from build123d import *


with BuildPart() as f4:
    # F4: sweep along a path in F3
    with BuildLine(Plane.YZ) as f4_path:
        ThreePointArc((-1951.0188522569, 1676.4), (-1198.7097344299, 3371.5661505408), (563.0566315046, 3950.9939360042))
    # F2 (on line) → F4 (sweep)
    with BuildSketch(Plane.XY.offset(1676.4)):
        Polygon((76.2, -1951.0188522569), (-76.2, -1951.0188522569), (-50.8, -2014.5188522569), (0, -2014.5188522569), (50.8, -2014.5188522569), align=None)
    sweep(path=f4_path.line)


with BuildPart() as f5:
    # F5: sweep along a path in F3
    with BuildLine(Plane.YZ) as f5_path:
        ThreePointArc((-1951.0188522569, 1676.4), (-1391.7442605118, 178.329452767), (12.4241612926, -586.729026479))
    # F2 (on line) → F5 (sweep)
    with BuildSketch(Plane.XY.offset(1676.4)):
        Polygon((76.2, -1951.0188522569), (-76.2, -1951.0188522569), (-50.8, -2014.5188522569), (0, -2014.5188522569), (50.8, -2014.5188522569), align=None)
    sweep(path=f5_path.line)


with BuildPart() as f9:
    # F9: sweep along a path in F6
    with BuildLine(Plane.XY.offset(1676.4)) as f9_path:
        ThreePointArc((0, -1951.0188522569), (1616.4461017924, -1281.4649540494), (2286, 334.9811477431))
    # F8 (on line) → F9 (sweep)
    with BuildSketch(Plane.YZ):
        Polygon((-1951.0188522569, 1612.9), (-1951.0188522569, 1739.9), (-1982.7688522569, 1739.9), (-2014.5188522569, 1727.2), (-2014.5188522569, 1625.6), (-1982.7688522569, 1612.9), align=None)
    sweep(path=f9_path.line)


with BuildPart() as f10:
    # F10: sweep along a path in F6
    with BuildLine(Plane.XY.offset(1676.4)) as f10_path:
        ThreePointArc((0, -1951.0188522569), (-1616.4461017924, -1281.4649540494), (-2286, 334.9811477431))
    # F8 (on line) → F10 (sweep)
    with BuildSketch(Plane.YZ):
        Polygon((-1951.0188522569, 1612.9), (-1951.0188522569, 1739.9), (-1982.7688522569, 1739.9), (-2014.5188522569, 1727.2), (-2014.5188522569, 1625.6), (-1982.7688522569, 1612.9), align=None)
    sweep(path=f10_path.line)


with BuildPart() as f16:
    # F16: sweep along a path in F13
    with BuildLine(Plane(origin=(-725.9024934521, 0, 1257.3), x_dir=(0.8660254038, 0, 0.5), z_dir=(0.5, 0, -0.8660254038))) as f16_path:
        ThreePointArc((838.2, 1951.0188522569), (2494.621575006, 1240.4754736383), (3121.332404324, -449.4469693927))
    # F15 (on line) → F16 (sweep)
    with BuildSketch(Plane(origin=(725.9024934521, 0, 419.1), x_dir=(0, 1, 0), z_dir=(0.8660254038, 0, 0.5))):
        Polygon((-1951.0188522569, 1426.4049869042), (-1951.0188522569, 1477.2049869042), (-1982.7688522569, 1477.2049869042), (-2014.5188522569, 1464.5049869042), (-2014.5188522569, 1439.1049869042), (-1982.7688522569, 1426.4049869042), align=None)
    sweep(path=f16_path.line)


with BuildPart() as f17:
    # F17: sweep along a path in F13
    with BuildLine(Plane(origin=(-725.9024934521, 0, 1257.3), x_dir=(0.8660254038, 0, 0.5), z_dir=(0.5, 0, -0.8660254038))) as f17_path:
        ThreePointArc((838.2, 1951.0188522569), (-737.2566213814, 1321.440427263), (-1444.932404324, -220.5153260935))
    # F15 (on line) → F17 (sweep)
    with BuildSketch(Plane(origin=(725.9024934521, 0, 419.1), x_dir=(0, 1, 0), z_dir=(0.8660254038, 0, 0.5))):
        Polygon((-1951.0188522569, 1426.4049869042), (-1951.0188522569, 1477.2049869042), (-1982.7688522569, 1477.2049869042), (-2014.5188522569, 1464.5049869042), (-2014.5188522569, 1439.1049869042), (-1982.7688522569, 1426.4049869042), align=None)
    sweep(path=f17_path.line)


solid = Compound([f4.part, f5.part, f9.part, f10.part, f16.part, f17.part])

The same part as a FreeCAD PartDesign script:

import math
import FreeCAD as App
import Part
import Sketcher
Q = App.Units.Quantity


def add_polygon(sketch, points):
    """Adds a closed chain of lines whose ends are joined by coincident constraints."""
    first, n = sketch.GeometryCount, len(points)
    for a, b in zip(points, points[1:] + points[:1]):
        sketch.addGeometry(Part.LineSegment(App.Vector(*a, 0), App.Vector(*b, 0)), False)
    for i in range(n):
        sketch.addConstraint(Sketcher.Constraint("Coincident", first + i, 2, first + (i + 1) % n, 1))

doc = App.newDocument("Part")
body = doc.addObject("PartDesign::Body", "Body")

# Sketch on XY plane
sketch1 = doc.addObject("Sketcher::SketchObject", "Sketch")
body.addObject(sketch1)
sketch1.AttachmentSupport = (doc.XY_Plane, [""])
sketch1.MapMode = "FlatFace"
sketch1.AttachmentOffset = App.Placement(App.Vector(0, 0, 66 * 25.4), App.Rotation())
add_polygon(sketch1, [(76, -1951), (-76, -1951), (-51, -2015), (51, -2015)])  # lines 0-3
sketch1.addConstraint(Sketcher.Constraint("Horizontal", 0))
sketch1.addConstraint(Sketcher.Constraint("Horizontal", 2))
sketch1.addConstraint(Sketcher.Constraint("Equal", 1, 3))
sketch1.addConstraint(Sketcher.Constraint("DistanceX", 0, 2, 0, 1, Q("6 in")))
sketch1.addConstraint(Sketcher.Constraint("DistanceX", 2, 1, 2, 2, Q("4 in")))
sketch1.addConstraint(Sketcher.Constraint("DistanceX", 0, 2, -1, 1, Q("3 in")))
sketch1.addConstraint(Sketcher.Constraint("DistanceY", 1, 2, 0, 2, Q("2.5 in")))
sketch1.addConstraint(Sketcher.Constraint("DistanceY", 0, 2, -1, 1, Q("1951.018852 mm")))

# Sketch on YZ plane
sketch2 = doc.addObject("Sketcher::SketchObject", "Sketch001")
body.addObject(sketch2)
sketch2.AttachmentSupport = (doc.YZ_Plane, [""])
sketch2.MapMode = "FlatFace"
sketch2.addGeometry(Part.ArcOfCircle(Part.Circle(App.Vector(335, 1676, 0), App.Vector(0, 0, 1), 2286), math.radians(84), math.radians(180)), False)
sketch2.addConstraint(Sketcher.Constraint("Radius", 0, Q("90 in")))
sketch2.addConstraint(Sketcher.Constraint("DistanceY", -1, 1, 0, 3, Q("66 in")))
sketch2.addConstraint(Sketcher.Constraint("DistanceY", -1, 1, 0, 2, Q("66 in")))
sketch2.addConstraint(Sketcher.Constraint("DistanceX", -1, 1, 0, 1, Q("563.056632 mm")))
sketch2.addConstraint(Sketcher.Constraint("DistanceX", -1, 1, 0, 3, Q("334.981148 mm")))
doc.recompute()

additivepipe = doc.addObject("PartDesign::AdditivePipe", "AdditivePipe")
body.addObject(additivepipe)
additivepipe.Profile = sketch1
additivepipe.Spine = (sketch2, ["Edge1"])
body2 = doc.addObject("PartDesign::Body", "Body001")

# Sketch on XY plane
sketch3 = doc.addObject("Sketcher::SketchObject", "Sketch002")
body2.addObject(sketch3)
sketch3.AttachmentSupport = (doc.getObject("XY_Plane001"), [""])
sketch3.MapMode = "FlatFace"
sketch3.AttachmentOffset = App.Placement(App.Vector(0, 0, 66 * 25.4), App.Rotation())
add_polygon(sketch3, [(76, -1951), (-76, -1951), (-51, -2015), (51, -2015)])  # lines 0-3
sketch3.addConstraint(Sketcher.Constraint("Horizontal", 0))
sketch3.addConstraint(Sketcher.Constraint("Horizontal", 2))
sketch3.addConstraint(Sketcher.Constraint("Equal", 1, 3))
sketch3.addConstraint(Sketcher.Constraint("DistanceX", 0, 2, 0, 1, Q("6 in")))
sketch3.addConstraint(Sketcher.Constraint("DistanceX", 2, 1, 2, 2, Q("4 in")))
sketch3.addConstraint(Sketcher.Constraint("DistanceX", 0, 2, -1, 1, Q("3 in")))
sketch3.addConstraint(Sketcher.Constraint("DistanceY", 1, 2, 0, 2, Q("2.5 in")))
sketch3.addConstraint(Sketcher.Constraint("DistanceY", 0, 2, -1, 1, Q("1951.018852 mm")))

# Sketch on YZ plane
sketch4 = doc.addObject("Sketcher::SketchObject", "Sketch003")
body2.addObject(sketch4)
sketch4.AttachmentSupport = (doc.getObject("YZ_Plane001"), [""])
sketch4.MapMode = "FlatFace"
sketch4.addGeometry(Part.ArcOfCircle(Part.Circle(App.Vector(335, 1676, 0), App.Vector(0, 0, 1), 2286), math.radians(180), math.radians(262)), False)
sketch4.addConstraint(Sketcher.Constraint("Radius", 0, Q("90 in")))
sketch4.addConstraint(Sketcher.Constraint("DistanceY", -1, 1, 0, 3, Q("66 in")))
sketch4.addConstraint(Sketcher.Constraint("DistanceY", -1, 1, 0, 1, Q("66 in")))
sketch4.addConstraint(Sketcher.Constraint("DistanceX", -1, 1, 0, 2, Q("12.424161 mm")))
sketch4.addConstraint(Sketcher.Constraint("DistanceX", -1, 1, 0, 3, Q("334.981148 mm")))
doc.recompute()

additivepipe2 = doc.addObject("PartDesign::AdditivePipe", "AdditivePipe001")
body2.addObject(additivepipe2)
additivepipe2.Profile = sketch3
additivepipe2.Spine = (sketch4, ["Edge1"])
body3 = doc.addObject("PartDesign::Body", "Body002")

# Sketch on YZ plane
sketch5 = doc.addObject("Sketcher::SketchObject", "Sketch004")
body3.addObject(sketch5)
sketch5.AttachmentSupport = (doc.getObject("YZ_Plane002"), [""])
sketch5.MapMode = "FlatFace"
add_polygon(sketch5, [(-1951, 1613), (-1951, 1740), (-1983, 1740), (-2015, 1727), (-2015, 1626), (-1983, 1613)])  # lines 0-5
sketch5.addConstraint(Sketcher.Constraint("Vertical", 0))
sketch5.addConstraint(Sketcher.Constraint("Horizontal", 1))
sketch5.addConstraint(Sketcher.Constraint("Vertical", 3))
sketch5.addConstraint(Sketcher.Constraint("Horizontal", 5))
sketch5.addConstraint(Sketcher.Constraint("Vertical", 1, 2, 4, 2))
sketch5.addConstraint(Sketcher.Constraint("Equal", 2, 4))
sketch5.addConstraint(Sketcher.Constraint("DistanceY", 0, 1, 0, 2, Q("5 in")))
sketch5.addConstraint(Sketcher.Constraint("DistanceY", 3, 2, 3, 1, Q("4 in")))
sketch5.addConstraint(Sketcher.Constraint("DistanceY", -1, 1, 2, 2, Q("68 in")))
sketch5.addConstraint(Sketcher.Constraint("DistanceX", 1, 2, 1, 1, Q("1.25 in")))
sketch5.addConstraint(Sketcher.Constraint("DistanceX", 2, 2, 0, 2, Q("2.5 in")))
sketch5.addConstraint(Sketcher.Constraint("DistanceX", 0, 2, -1, 1, Q("1951.018852 mm")))

# Sketch on XY plane
sketch6 = doc.addObject("Sketcher::SketchObject", "Sketch005")
body3.addObject(sketch6)
sketch6.AttachmentSupport = (doc.getObject("XY_Plane002"), [""])
sketch6.MapMode = "FlatFace"
sketch6.AttachmentOffset = App.Placement(App.Vector(0, 0, 66 * 25.4), App.Rotation())
sketch6.addGeometry(Part.ArcOfCircle(Part.Circle(App.Vector(0, 335, 0), App.Vector(0, 0, 1), 2286), math.radians(-90), math.radians(0)), False)
sketch6.addConstraint(Sketcher.Constraint("PointOnObject", 0, 3, -2))
sketch6.addConstraint(Sketcher.Constraint("PointOnObject", 0, 1, -2))
sketch6.addConstraint(Sketcher.Constraint("Radius", 0, Q("90 in")))
sketch6.addConstraint(Sketcher.Constraint("DistanceY", 0, 1, 0, 2, Q("90 in")))
sketch6.addConstraint(Sketcher.Constraint("DistanceY", -1, 1, 0, 3, Q("334.981148 mm")))
doc.recompute()

additivepipe3 = doc.addObject("PartDesign::AdditivePipe", "AdditivePipe002")
body3.addObject(additivepipe3)
additivepipe3.Profile = sketch5
additivepipe3.Spine = (sketch6, ["Edge1"])
body4 = doc.addObject("PartDesign::Body", "Body003")

# Sketch on YZ plane
sketch7 = doc.addObject("Sketcher::SketchObject", "Sketch006")
body4.addObject(sketch7)
sketch7.AttachmentSupport = (doc.getObject("YZ_Plane003"), [""])
sketch7.MapMode = "FlatFace"
add_polygon(sketch7, [(-1951, 1613), (-1951, 1740), (-1983, 1740), (-2015, 1727), (-2015, 1626), (-1983, 1613)])  # lines 0-5
sketch7.addConstraint(Sketcher.Constraint("Vertical", 0))
sketch7.addConstraint(Sketcher.Constraint("Horizontal", 1))
sketch7.addConstraint(Sketcher.Constraint("Vertical", 3))
sketch7.addConstraint(Sketcher.Constraint("Horizontal", 5))
sketch7.addConstraint(Sketcher.Constraint("Vertical", 1, 2, 4, 2))
sketch7.addConstraint(Sketcher.Constraint("Equal", 2, 4))
sketch7.addConstraint(Sketcher.Constraint("DistanceY", 0, 1, 0, 2, Q("5 in")))
sketch7.addConstraint(Sketcher.Constraint("DistanceY", 3, 2, 3, 1, Q("4 in")))
sketch7.addConstraint(Sketcher.Constraint("DistanceY", -1, 1, 2, 2, Q("68 in")))
sketch7.addConstraint(Sketcher.Constraint("DistanceX", 1, 2, 1, 1, Q("1.25 in")))
sketch7.addConstraint(Sketcher.Constraint("DistanceX", 2, 2, 0, 2, Q("2.5 in")))
sketch7.addConstraint(Sketcher.Constraint("DistanceX", 0, 2, -1, 1, Q("1951.018852 mm")))

# Sketch on XY plane
sketch8 = doc.addObject("Sketcher::SketchObject", "Sketch007")
body4.addObject(sketch8)
sketch8.AttachmentSupport = (doc.getObject("XY_Plane003"), [""])
sketch8.MapMode = "FlatFace"
sketch8.AttachmentOffset = App.Placement(App.Vector(0, 0, 66 * 25.4), App.Rotation())
sketch8.addGeometry(Part.ArcOfCircle(Part.Circle(App.Vector(0, 335, 0), App.Vector(0, 0, 1), 2286), math.radians(180), math.radians(270)), False)
sketch8.addConstraint(Sketcher.Constraint("PointOnObject", 0, 3, -2))
sketch8.addConstraint(Sketcher.Constraint("PointOnObject", 0, 2, -2))
sketch8.addConstraint(Sketcher.Constraint("Radius", 0, Q("90 in")))
sketch8.addConstraint(Sketcher.Constraint("DistanceY", 0, 2, 0, 1, Q("90 in")))
sketch8.addConstraint(Sketcher.Constraint("DistanceY", -1, 1, 0, 3, Q("334.981148 mm")))
doc.recompute()

additivepipe4 = doc.addObject("PartDesign::AdditivePipe", "AdditivePipe003")
body4.addObject(additivepipe4)
additivepipe4.Profile = sketch7
additivepipe4.Spine = (sketch8, ["Edge1"])
body5 = doc.addObject("PartDesign::Body", "Body004")

# Sketch on an angled plane
sketch9 = doc.addObject("Sketcher::SketchObject", "Sketch008")
body5.addObject(sketch9)
sketch9.Placement = App.Placement(App.Vector(725.902493, 0, 419.1), App.Rotation(App.Vector(0, 1, 0), App.Vector(-0.5, 0, 0.866025404), App.Vector(0.866025404, 0, 0.5), "ZXY"))
add_polygon(sketch9, [(-1951, 1426), (-1951, 1477), (-1983, 1477), (-2015, 1465), (-2015, 1439), (-1983, 1426)])  # lines 0-5
sketch9.addConstraint(Sketcher.Constraint("Vertical", 0))
sketch9.addConstraint(Sketcher.Constraint("Horizontal", 1))
sketch9.addConstraint(Sketcher.Constraint("Vertical", 3))
sketch9.addConstraint(Sketcher.Constraint("Horizontal", 5))
sketch9.addConstraint(Sketcher.Constraint("Vertical", 1, 2, 4, 2))
sketch9.addConstraint(Sketcher.Constraint("Equal", 2, 4))
sketch9.addConstraint(Sketcher.Constraint("DistanceY", 0, 1, 0, 2, Q("2 in")))
sketch9.addConstraint(Sketcher.Constraint("DistanceY", 3, 2, 3, 1, Q("1 in")))
sketch9.addConstraint(Sketcher.Constraint("DistanceX", 1, 2, 1, 1, Q("1.25 in")))
sketch9.addConstraint(Sketcher.Constraint("DistanceX", 2, 2, 0, 2, Q("2.5 in")))
sketch9.addConstraint(Sketcher.Constraint("DistanceX", 0, 2, -1, 1, Q("1951.018852 mm")))
sketch9.addConstraint(Sketcher.Constraint("DistanceY", -1, 1, 0, 2, Q("1477.204987 mm")))

# Sketch on an angled plane
sketch10 = doc.addObject("Sketcher::SketchObject", "Sketch009")
body5.addObject(sketch10)
sketch10.Placement = App.Placement(App.Vector(-725.902493, 0, 1257.3), App.Rotation(App.Vector(-0.866025404, 0, -0.5), App.Vector(0, 1, 0), App.Vector(0.5, 0, -0.866025404), "ZXY"))
sketch10.addGeometry(Part.ArcOfCircle(Part.Circle(App.Vector(-838, 335, 0), App.Vector(0, 0, 1), 2286), math.radians(177), math.radians(270)), False)
sketch10.addConstraint(Sketcher.Constraint("Radius", 0, Q("90 in")))
sketch10.addConstraint(Sketcher.Constraint("DistanceX", 0, 3, -1, 1, Q("33 in")))
sketch10.addConstraint(Sketcher.Constraint("DistanceX", 0, 2, -1, 1, Q("33 in")))
sketch10.addConstraint(Sketcher.Constraint("DistanceY", -1, 1, 0, 1, Q("449.44697 mm")))
sketch10.addConstraint(Sketcher.Constraint("DistanceY", -1, 1, 0, 3, Q("334.981148 mm")))
doc.recompute()

additivepipe5 = doc.addObject("PartDesign::AdditivePipe", "AdditivePipe004")
body5.addObject(additivepipe5)
additivepipe5.Profile = sketch9
additivepipe5.Spine = (sketch10, ["Edge1"])
body6 = doc.addObject("PartDesign::Body", "Body005")

# Sketch on an angled plane
sketch11 = doc.addObject("Sketcher::SketchObject", "Sketch010")
body6.addObject(sketch11)
sketch11.Placement = App.Placement(App.Vector(725.902493, 0, 419.1), App.Rotation(App.Vector(0, 1, 0), App.Vector(-0.5, 0, 0.866025404), App.Vector(0.866025404, 0, 0.5), "ZXY"))
add_polygon(sketch11, [(-1951, 1426), (-1951, 1477), (-1983, 1477), (-2015, 1465), (-2015, 1439), (-1983, 1426)])  # lines 0-5
sketch11.addConstraint(Sketcher.Constraint("Vertical", 0))
sketch11.addConstraint(Sketcher.Constraint("Horizontal", 1))
sketch11.addConstraint(Sketcher.Constraint("Vertical", 3))
sketch11.addConstraint(Sketcher.Constraint("Horizontal", 5))
sketch11.addConstraint(Sketcher.Constraint("Vertical", 1, 2, 4, 2))
sketch11.addConstraint(Sketcher.Constraint("Equal", 2, 4))
sketch11.addConstraint(Sketcher.Constraint("DistanceY", 0, 1, 0, 2, Q("2 in")))
sketch11.addConstraint(Sketcher.Constraint("DistanceY", 3, 2, 3, 1, Q("1 in")))
sketch11.addConstraint(Sketcher.Constraint("DistanceX", 1, 2, 1, 1, Q("1.25 in")))
sketch11.addConstraint(Sketcher.Constraint("DistanceX", 2, 2, 0, 2, Q("2.5 in")))
sketch11.addConstraint(Sketcher.Constraint("DistanceX", 0, 2, -1, 1, Q("1951.018852 mm")))
sketch11.addConstraint(Sketcher.Constraint("DistanceY", -1, 1, 0, 2, Q("1477.204987 mm")))

# Sketch on an angled plane
sketch12 = doc.addObject("Sketcher::SketchObject", "Sketch011")
body6.addObject(sketch12)
sketch12.Placement = App.Placement(App.Vector(-725.902493, 0, 1257.3), App.Rotation(App.Vector(0.866025404, 0, 0.5), App.Vector(0, 1, 0), App.Vector(-0.5, 0, 0.866025404), "ZXY"))
sketch12.addGeometry(Part.ArcOfCircle(Part.Circle(App.Vector(838, 335, 0), App.Vector(0, 0, 1), 2286), math.radians(-177), math.radians(-90)), False)
sketch12.addConstraint(Sketcher.Constraint("Radius", 0, Q("90 in")))
sketch12.addConstraint(Sketcher.Constraint("DistanceX", -1, 1, 0, 3, Q("33 in")))
sketch12.addConstraint(Sketcher.Constraint("DistanceX", -1, 1, 0, 2, Q("33 in")))
sketch12.addConstraint(Sketcher.Constraint("DistanceY", 0, 1, 0, 3, Q("114.465822 mm")))
sketch12.addConstraint(Sketcher.Constraint("DistanceY", -1, 1, 0, 3, Q("334.981148 mm")))
doc.recompute()

additivepipe6 = doc.addObject("PartDesign::AdditivePipe", "AdditivePipe005")
body6.addObject(additivepipe6)
additivepipe6.Profile = sketch11
additivepipe6.Spine = (sketch12, ["Edge1"])

doc.recompute()
